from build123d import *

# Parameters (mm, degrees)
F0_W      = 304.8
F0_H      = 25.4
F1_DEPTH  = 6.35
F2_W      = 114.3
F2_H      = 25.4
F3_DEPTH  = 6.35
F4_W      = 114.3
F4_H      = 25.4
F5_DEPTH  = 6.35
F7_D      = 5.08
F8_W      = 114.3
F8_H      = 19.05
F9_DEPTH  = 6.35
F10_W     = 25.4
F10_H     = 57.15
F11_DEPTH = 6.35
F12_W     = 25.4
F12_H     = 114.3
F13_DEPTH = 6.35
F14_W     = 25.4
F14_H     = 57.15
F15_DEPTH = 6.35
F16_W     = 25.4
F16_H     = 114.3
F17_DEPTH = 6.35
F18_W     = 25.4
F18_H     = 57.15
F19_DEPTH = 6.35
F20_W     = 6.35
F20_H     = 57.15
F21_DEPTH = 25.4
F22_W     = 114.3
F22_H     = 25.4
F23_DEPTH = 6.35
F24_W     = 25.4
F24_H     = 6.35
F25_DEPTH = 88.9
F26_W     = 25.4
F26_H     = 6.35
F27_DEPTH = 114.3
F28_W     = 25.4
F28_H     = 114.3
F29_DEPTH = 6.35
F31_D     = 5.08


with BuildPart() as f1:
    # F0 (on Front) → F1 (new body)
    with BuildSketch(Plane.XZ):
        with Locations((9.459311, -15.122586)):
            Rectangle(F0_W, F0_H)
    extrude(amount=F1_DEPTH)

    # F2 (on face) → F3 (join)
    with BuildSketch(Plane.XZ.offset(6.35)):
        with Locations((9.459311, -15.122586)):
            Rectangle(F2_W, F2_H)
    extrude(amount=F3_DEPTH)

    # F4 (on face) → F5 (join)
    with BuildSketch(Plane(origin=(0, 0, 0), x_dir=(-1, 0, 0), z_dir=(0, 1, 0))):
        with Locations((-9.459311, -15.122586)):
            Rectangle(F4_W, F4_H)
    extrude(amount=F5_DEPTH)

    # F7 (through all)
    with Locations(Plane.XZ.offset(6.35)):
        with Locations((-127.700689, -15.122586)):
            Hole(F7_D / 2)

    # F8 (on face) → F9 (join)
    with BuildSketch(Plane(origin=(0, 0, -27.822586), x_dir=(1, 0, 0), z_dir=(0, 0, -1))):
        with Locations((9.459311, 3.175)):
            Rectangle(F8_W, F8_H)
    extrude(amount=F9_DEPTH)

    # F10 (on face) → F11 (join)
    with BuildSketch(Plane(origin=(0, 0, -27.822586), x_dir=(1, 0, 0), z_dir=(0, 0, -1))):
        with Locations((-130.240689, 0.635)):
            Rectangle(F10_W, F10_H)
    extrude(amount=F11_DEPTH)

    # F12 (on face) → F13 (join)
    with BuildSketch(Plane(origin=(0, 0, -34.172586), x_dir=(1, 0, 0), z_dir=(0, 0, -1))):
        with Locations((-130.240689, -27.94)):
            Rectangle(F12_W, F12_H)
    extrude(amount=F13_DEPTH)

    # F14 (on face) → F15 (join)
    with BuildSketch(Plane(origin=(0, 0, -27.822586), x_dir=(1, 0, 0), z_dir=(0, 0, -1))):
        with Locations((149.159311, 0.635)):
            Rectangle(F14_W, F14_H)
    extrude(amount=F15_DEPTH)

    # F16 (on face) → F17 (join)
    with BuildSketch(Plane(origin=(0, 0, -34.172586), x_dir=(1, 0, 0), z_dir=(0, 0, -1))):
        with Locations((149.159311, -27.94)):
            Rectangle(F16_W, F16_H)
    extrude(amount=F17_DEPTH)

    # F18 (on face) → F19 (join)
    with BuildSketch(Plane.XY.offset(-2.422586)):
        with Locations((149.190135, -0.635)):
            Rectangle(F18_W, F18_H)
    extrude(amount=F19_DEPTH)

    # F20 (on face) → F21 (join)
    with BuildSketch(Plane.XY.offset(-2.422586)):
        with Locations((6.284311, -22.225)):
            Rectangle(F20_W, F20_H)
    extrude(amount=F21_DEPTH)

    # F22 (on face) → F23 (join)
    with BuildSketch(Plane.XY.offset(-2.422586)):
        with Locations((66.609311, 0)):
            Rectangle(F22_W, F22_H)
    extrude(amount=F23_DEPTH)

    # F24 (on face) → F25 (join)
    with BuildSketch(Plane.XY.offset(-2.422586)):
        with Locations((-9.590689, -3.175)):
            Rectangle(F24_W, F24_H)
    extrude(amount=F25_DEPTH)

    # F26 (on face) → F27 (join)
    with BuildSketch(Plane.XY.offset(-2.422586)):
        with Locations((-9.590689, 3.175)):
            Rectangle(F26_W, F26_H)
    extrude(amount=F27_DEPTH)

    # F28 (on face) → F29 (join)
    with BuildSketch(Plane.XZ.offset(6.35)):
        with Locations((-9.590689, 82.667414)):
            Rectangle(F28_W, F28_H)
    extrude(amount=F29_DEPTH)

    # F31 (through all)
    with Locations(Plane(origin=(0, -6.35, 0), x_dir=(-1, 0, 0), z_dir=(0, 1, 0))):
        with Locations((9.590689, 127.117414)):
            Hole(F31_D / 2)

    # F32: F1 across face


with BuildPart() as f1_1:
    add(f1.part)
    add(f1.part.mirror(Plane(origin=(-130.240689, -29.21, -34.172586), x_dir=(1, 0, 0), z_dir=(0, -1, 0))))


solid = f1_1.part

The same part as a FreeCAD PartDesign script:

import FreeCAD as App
import Part
import Sketcher
from FreeCAD import Vector
Q = App.Units.Quantity


def add_polygon(sketch, points):
    """Adds a closed chain of lines whose ends are joined by coincident constraints."""
    first, n = sketch.GeometryCount, len(points)
    for a, b in zip(points, points[1:] + points[:1]):
        sketch.addGeometry(Part.LineSegment(App.Vector(*a, 0), App.Vector(*b, 0)), False)
    for i in range(n):
        sketch.addConstraint(Sketcher.Constraint("Coincident", first + i, 2, first + (i + 1) % n, 1))

doc = App.newDocument("Part")
body = doc.addObject("PartDesign::Body", "Body")

# Sketch on XZ plane
sketch1 = body.newObject("Sketcher::SketchObject", "Sketch")
sketch1.AttachmentSupport = (doc.getObject("XZ_Plane"), [""])
sketch1.MapMode = "FlatFace"
add_polygon(sketch1, [(-143, -2), (-143, -28), (162, -28), (162, -2)])  # lines 0-3
sketch1.addConstraint(Sketcher.Constraint("Vertical", 0))
sketch1.addConstraint(Sketcher.Constraint("Horizontal", 1))
sketch1.addConstraint(Sketcher.Constraint("Vertical", 2))
sketch1.addConstraint(Sketcher.Constraint("Horizontal", 3))
sketch1.addConstraint(Sketcher.Constraint("DistanceX", 1, 1, 1, 2, Q("12 in")))
sketch1.addConstraint(Sketcher.Constraint("DistanceY", 0, 2, 0, 1, Q("1 in")))
sketch1.addConstraint(Sketcher.Constraint("DistanceX", 0, 2, -1, 1, 142.940689))
sketch1.addConstraint(Sketcher.Constraint("DistanceY", 0, 2, -1, 1, 27.822586))
pad1 = body.newObject("PartDesign::Pad", "Pad")
pad1.Profile = sketch1
pad1.Length = Q("0.25 in")

# Sketch on XZ plane
sketch2 = body.newObject("Sketcher::SketchObject", "Sketch001")
sketch2.AttachmentSupport = (doc.getObject("XZ_Plane"), [""])
sketch2.MapMode = "FlatFace"
sketch2.AttachmentOffset = App.Placement(Vector(0, 0, 0.25 * 25.4), App.Rotation())
add_polygon(sketch2, [(-48, -2), (-48, -28), (67, -28), (67, -2)])  # lines 0-3
sketch2.addConstraint(Sketcher.Constraint("Vertical", 0))
sketch2.addConstraint(Sketcher.Constraint("Horizontal", 1))
sketch2.addConstraint(Sketcher.Constraint("Vertical", 2))
sketch2.addConstraint(Sketcher.Constraint("Horizontal", 3))
sketch2.addConstraint(Sketcher.Constraint("DistanceY", 0, 2, 0, 1, Q("1 in")))
sketch2.addConstraint(Sketcher.Constraint("DistanceX", 1, 1, 1, 2, Q("4.5 in")))
sketch2.addConstraint(Sketcher.Constraint("DistanceX", 0, 2, -1, 1, 47.690689))
sketch2.addConstraint(Sketcher.Constraint("DistanceY", 0, 2, -1, 1, 27.822586))
pad2 = body.newObject("PartDesign::Pad", "Pad001")
pad2.Profile = sketch2
pad2.Length = Q("0.25 in")

# Sketch on XZ plane
sketch3 = body.newObject("Sketcher::SketchObject", "Sketch002")
sketch3.AttachmentSupport = (doc.getObject("XZ_Plane"), [""])
sketch3.MapMode = "FlatFace"
add_polygon(sketch3, [(67, -2), (67, -28), (-48, -28), (-48, -2)])  # lines 0-3
sketch3.addConstraint(Sketcher.Constraint("Vertical", 0))
sketch3.addConstraint(Sketcher.Constraint("Horizontal", 1))
sketch3.addConstraint(Sketcher.Constraint("Vertical", 2))
sketch3.addConstraint(Sketcher.Constraint("Horizontal", 3))
sketch3.addConstraint(Sketcher.Constraint("DistanceY", 0, 2, 0, 1, Q("1 in")))
sketch3.addConstraint(Sketcher.Constraint("DistanceX", 1, 2, 1, 1, Q("4.5 in")))
sketch3.addConstraint(Sketcher.Constraint("DistanceX", -1, 1, 0, 2, 66.609311))
sketch3.addConstraint(Sketcher.Constraint("DistanceY", 0, 2, -1, 1, 27.822586))
pad3 = body.newObject("PartDesign::Pad", "Pad002")
pad3.Profile = sketch3
pad3.Length = Q("0.25 in")
pad3.Reversed = True

# Sketch on XZ plane
sketch4 = body.newObject("Sketcher::SketchObject", "Sketch003")
sketch4.AttachmentSupport = (doc.getObject("XZ_Plane"), [""])
sketch4.MapMode = "FlatFace"
sketch4.AttachmentOffset = App.Placement(Vector(0, 0, 0.25 * 25.4), App.Rotation())
sketch4.addGeometry(Part.Circle(Vector(-127.7, -15.1, 0), Vector(0, 0, 1), 2.5), False)
sketch4.addConstraint(Sketcher.Constraint("Diameter", 0, Q("0.2 in")))
sketch4.addConstraint(Sketcher.Constraint("DistanceX", 0, 3, -1, 1, 127.700689))
sketch4.addConstraint(Sketcher.Constraint("DistanceY", 0, 3, -1, 1, 15.122586))
doc.recompute()
hole = body.newObject("PartDesign::Hole", "Hole")
hole.Profile = sketch4
hole.ThreadType = "None"
hole.Diameter = Q("0.2 in")
hole.DepthType = "ThroughAll"

# Sketch on XY plane
sketch5 = body.newObject("Sketcher::SketchObject", "Sketch004")
sketch5.AttachmentSupport = (doc.getObject("XY_Plane"), [""])
sketch5.MapMode = "FlatFace"
sketch5.AttachmentOffset = App.Placement(Vector(0, 0, -27.822586), App.Rotation())
add_polygon(sketch5, [(-48, -13), (-48, 6), (67, 6), (67, -13)])  # lines 0-3
sketch5.addConstraint(Sketcher.Constraint("Vertical", 0))
sketch5.addConstraint(Sketcher.Constraint("Horizontal", 1))
sketch5.addConstraint(Sketcher.Constraint("Vertical", 2))
sketch5.addConstraint(Sketcher.Constraint("Horizontal", 3))
sketch5.addConstraint(Sketcher.Constraint("DistanceX", 1, 1, 1, 2, Q("4.5 in")))
sketch5.addConstraint(Sketcher.Constraint("DistanceY", 0, 1, 0, 2, Q("0.75 in")))
sketch5.addConstraint(Sketcher.Constraint("DistanceY", 2, 2, -1, 1, Q("0.5 in")))
sketch5.addConstraint(Sketcher.Constraint("DistanceX", 0, 2, -1, 1, 47.690689))
pad4 = body.newObject("PartDesign::Pad", "Pad003")
pad4.Profile = sketch5
pad4.Length = Q("0.25 in")
pad4.Reversed = True

# Sketch on XY plane
sketch6 = body.newObject("Sketcher::SketchObject", "Sketch005")
sketch6.AttachmentSupport = (doc.getObject("XY_Plane"), [""])
sketch6.MapMode = "FlatFace"
sketch6.AttachmentOffset = App.Placement(Vector(0, 0, -27.822586), App.Rotation())
add_polygon(sketch6, [(-143, -29), (-143, 28), (-118, 28), (-118, -29)])  # lines 0-3
sketch6.addConstraint(Sketcher.Constraint("Vertical", 0))
sketch6.addConstraint(Sketcher.Constraint("Horizontal", 1))
sketch6.addConstraint(Sketcher.Constraint("Vertical", 2))
sketch6.addConstraint(Sketcher.Constraint("Horizontal", 3))
sketch6.addConstraint(Sketcher.Constraint("DistanceX", 1, 1, 1, 2, Q("1 in")))
sketch6.addConstraint(Sketcher.Constraint("DistanceY", 0, 1, 0, 2, Q("2.25 in")))
sketch6.addConstraint(Sketcher.Constraint("DistanceY", -1, 1, 0, 2, Q("1.1 in")))
sketch6.addConstraint(Sketcher.Constraint("DistanceX", 0, 2, -1, 1, 142.940689))
pad5 = body.newObject("PartDesign::Pad", "Pad004")
pad5.Profile = sketch6
pad5.Length = Q("0.25 in")
pad5.Reversed = True

# Sketch on XY plane
sketch7 = body.newObject("Sketcher::SketchObject", "Sketch006")
sketch7.AttachmentSupport = (doc.getObject("XY_Plane"), [""])
sketch7.MapMode = "FlatFace"
sketch7.AttachmentOffset = App.Placement(Vector(0, 0, -34.172586), App.Rotation())
add_polygon(sketch7, [(-143, -29), (-143, 85), (-118, 85), (-118, -29)])  # lines 0-3
sketch7.addConstraint(Sketcher.Constraint("Vertical", 0))
sketch7.addConstraint(Sketcher.Constraint("Horizontal", 1))
sketch7.addConstraint(Sketcher.Constraint("Vertical", 2))
sketch7.addConstraint(Sketcher.Constraint("Horizontal", 3))
sketch7.addConstraint(Sketcher.Constraint("DistanceX", 1, 1, 1, 2, Q("1 in")))
sketch7.addConstraint(Sketcher.Constraint("DistanceY", 0, 1, 0, 2, Q("4.5 in")))
sketch7.addConstraint(Sketcher.Constraint("DistanceY", -1, 1, 0, 2, Q("3.35 in")))
sketch7.addConstraint(Sketcher.Constraint("DistanceX", 0, 2, -1, 1, 142.940689))
pad6 = body.newObject("PartDesign::Pad", "Pad005")
pad6.Profile = sketch7
pad6.Length = Q("0.25 in")
pad6.Reversed = True

# Sketch on XY plane
sketch8 = body.newObject("Sketcher::SketchObject", "Sketch007")
sketch8.AttachmentSupport = (doc.getObject("XY_Plane"), [""])
sketch8.MapMode = "FlatFace"
sketch8.AttachmentOffset = App.Placement(Vector(0, 0, -27.822586), App.Rotation())
add_polygon(sketch8, [(136, -29), (136, 28), (162, 28), (162, -29)])  # lines 0-3
sketch8.addConstraint(Sketcher.Constraint("Vertical", 0))
sketch8.addConstraint(Sketcher.Constraint("Horizontal", 1))
sketch8.addConstraint(Sketcher.Constraint("Vertical", 2))
sketch8.addConstraint(Sketcher.Constraint("Horizontal", 3))
sketch8.addConstraint(Sketcher.Constraint("DistanceX", 1, 1, 1, 2, Q("1 in")))
sketch8.addConstraint(Sketcher.Constraint("DistanceY", 0, 1, 0, 2, Q("2.25 in")))
sketch8.addConstraint(Sketcher.Constraint("DistanceY", -1, 1, 0, 2, Q("1.1 in")))
sketch8.addConstraint(Sketcher.Constraint("DistanceX", -1, 1, 0, 2, 136.459311))
pad7 = body.newObject("PartDesign::Pad", "Pad006")
pad7.Profile = sketch8
pad7.Length = Q("0.25 in")
pad7.Reversed = True

# Sketch on XY plane
sketch9 = body.newObject("Sketcher::SketchObject", "Sketch008")
sketch9.AttachmentSupport = (doc.getObject("XY_Plane"), [""])
sketch9.MapMode = "FlatFace"
sketch9.AttachmentOffset = App.Placement(Vector(0, 0, -34.172586), App.Rotation())
add_polygon(sketch9, [(136, -29), (136, 85), (162, 85), (162, -29)])  # lines 0-3
sketch9.addConstraint(Sketcher.Constraint("Vertical", 0))
sketch9.addConstraint(Sketcher.Constraint("Horizontal", 1))
sketch9.addConstraint(Sketcher.Constraint("Vertical", 2))
sketch9.addConstraint(Sketcher.Constraint("Horizontal", 3))
sketch9.addConstraint(Sketcher.Constraint("DistanceX", 1, 1, 1, 2, Q("1 in")))
sketch9.addConstraint(Sketcher.Constraint("DistanceY", 0, 1, 0, 2, Q("4.5 in")))
sketch9.addConstraint(Sketcher.Constraint("DistanceY", -1, 1, 0, 2, Q("3.35 in")))
sketch9.addConstraint(Sketcher.Constraint("DistanceX", -1, 1, 0, 2, 136.459311))
pad8 = body.newObject("PartDesign::Pad", "Pad007")
pad8.Profile = sketch9
pad8.Length = Q("0.25 in")
pad8.Reversed = True

# Sketch on XY plane
sketch10 = body.newObject("Sketcher::SketchObject", "Sketch009")
sketch10.AttachmentSupport = (doc.getObject("XY_Plane"), [""])
sketch10.MapMode = "FlatFace"
sketch10.AttachmentOffset = App.Placement(Vector(0, 0, -2.422586), App.Rotation())
add_polygon(sketch10, [(136, 28), (136, -29), (162, -29), (162, 28)])  # lines 0-3
sketch10.addConstraint(Sketcher.Constraint("Vertical", 0))
sketch10.addConstraint(Sketcher.Constraint("Horizontal", 1))
sketch10.addConstraint(Sketcher.Constraint("Vertical", 2))
sketch10.addConstraint(Sketcher.Constraint("Horizontal", 3))
sketch10.addConstraint(Sketcher.Constraint("DistanceX", 1, 1, 1, 2, Q("1 in")))
sketch10.addConstraint(Sketcher.Constraint("DistanceY", 0, 2, 0, 1, Q("2.25 in")))
sketch10.addConstraint(Sketcher.Constraint("DistanceY", -1, 1, 2, 2, Q("1.1 in")))
sketch10.addConstraint(Sketcher.Constraint("DistanceX", -1, 1, 0, 2, 136.490135))
pad9 = body.newObject("PartDesign::Pad", "Pad008")
pad9.Profile = sketch10
pad9.Length = Q("0.25 in")

# Sketch on XY plane
sketch11 = body.newObject("Sketcher::SketchObject", "Sketch010")
sketch11.AttachmentSupport = (doc.getObject("XY_Plane"), [""])
sketch11.MapMode = "FlatFace"
sketch11.AttachmentOffset = App.Placement(Vector(0, 0, -2.422586), App.Rotation())
add_polygon(sketch11, [(3, 6), (3, -51), (9, -51), (9, 6)])  # lines 0-3
sketch11.addConstraint(Sketcher.Constraint("Vertical", 0))
sketch11.addConstraint(Sketcher.Constraint("Horizontal", 1))
sketch11.addConstraint(Sketcher.Constraint("Vertical", 2))
sketch11.addConstraint(Sketcher.Constraint("Horizontal", 3))
sketch11.addConstraint(Sketcher.Constraint("DistanceY", 0, 2, -1, 1, Q("2 in")))
sketch11.addConstraint(Sketcher.Constraint("DistanceX", 1, 1, 1, 2, Q("0.25 in")))
sketch11.addConstraint(Sketcher.Constraint("DistanceY", 0, 2, 0, 1, Q("2.25 in")))
sketch11.addConstraint(Sketcher.Constraint("DistanceX", -1, 1, 0, 2, 3.109311))
pad10 = body.newObject("PartDesign::Pad", "Pad009")
pad10.Profile = sketch11
pad10.Length = Q("1 in")

# Sketch on XY plane
sketch12 = body.newObject("Sketcher::SketchObject", "Sketch011")
sketch12.AttachmentSupport = (doc.getObject("XY_Plane"), [""])
sketch12.MapMode = "FlatFace"
sketch12.AttachmentOffset = App.Placement(Vector(0, 0, -2.422586), App.Rotation())
add_polygon(sketch12, [(9, 13), (9, -13), (124, -13), (124, 13)])  # lines 0-3
sketch12.addConstraint(Sketcher.Constraint("Vertical", 0))
sketch12.addConstraint(Sketcher.Constraint("Horizontal", 1))
sketch12.addConstraint(Sketcher.Constraint("Vertical", 2))
sketch12.addConstraint(Sketcher.Constraint("Horizontal", 3))
sketch12.addConstraint(Sketcher.Constraint("DistanceY", 0, 2, 0, 1, Q("1 in")))
sketch12.addConstraint(Sketcher.Constraint("DistanceX", 1, 1, 1, 2, Q("4.5 in")))
sketch12.addConstraint(Sketcher.Constraint("DistanceY", 0, 2, -1, 1, Q("0.5 in")))
sketch12.addConstraint(Sketcher.Constraint("DistanceX", -1, 1, 0, 2, 9.459311))
pad11 = body.newObject("PartDesign::Pad", "Pad010")
pad11.Profile = sketch12
pad11.Length = Q("0.25 in")

# Sketch on XY plane
sketch13 = body.newObject("Sketcher::SketchObject", "Sketch012")
sketch13.AttachmentSupport = (doc.getObject("XY_Plane"), [""])
sketch13.MapMode = "FlatFace"
sketch13.AttachmentOffset = App.Placement(Vector(0, 0, -2.422586), App.Rotation())
add_polygon(sketch13, [(-22, 0), (-22, -6), (3, -6), (3, 0)])  # lines 0-3
sketch13.addConstraint(Sketcher.Constraint("Vertical", 0))
sketch13.addConstraint(Sketcher.Constraint("Horizontal", 1))
sketch13.addConstraint(Sketcher.Constraint("Vertical", 2))
sketch13.addConstraint(Sketcher.Constraint("Horizontal", 3))
sketch13.addConstraint(Sketcher.Constraint("PointOnObject", 2, 2, -1))
sketch13.addConstraint(Sketcher.Constraint("DistanceX", 1, 1, 1, 2, Q("1 in")))
sketch13.addConstraint(Sketcher.Constraint("DistanceY", 0, 2, 0, 1, Q("0.25 in")))
sketch13.addConstraint(Sketcher.Constraint("DistanceX", 0, 2, -1, 1, 22.290689))
pad12 = body.newObject("PartDesign::Pad", "Pad011")
pad12.Profile = sketch13
pad12.Length = Q("3.5 in")

# Sketch on XY plane
sketch14 = body.newObject("Sketcher::SketchObject", "Sketch013")
sketch14.AttachmentSupport = (doc.getObject("XY_Plane"), [""])
sketch14.MapMode = "FlatFace"
sketch14.AttachmentOffset = App.Placement(Vector(0, 0, -2.422586), App.Rotation())
add_polygon(sketch14, [(-22, 6), (-22, 0), (3, 0), (3, 6)])  # lines 0-3
sketch14.addConstraint(Sketcher.Constraint("Vertical", 0))
sketch14.addConstraint(Sketcher.Constraint("Horizontal", 1))
sketch14.addConstraint(Sketcher.Constraint("Vertical", 2))
sketch14.addConstraint(Sketcher.Constraint("Horizontal", 3))
sketch14.addConstraint(Sketcher.Constraint("PointOnObject", 0, 2, -1))
sketch14.addConstraint(Sketcher.Constraint("DistanceX", 1, 1, 1, 2, Q("1 in")))
sketch14.addConstraint(Sketcher.Constraint("DistanceY", 0, 2, 0, 1, Q("0.25 in")))
sketch14.addConstraint(Sketcher.Constraint("DistanceX", 0, 2, -1, 1, 22.290689))
pad13 = body.newObject("PartDesign::Pad", "Pad012")
pad13.Profile = sketch14
pad13.Length = Q("4.5 in")

# Sketch on XZ plane
sketch15 = body.newObject("Sketcher::SketchObject", "Sketch014")
sketch15.AttachmentSupport = (doc.getObject("XZ_Plane"), [""])
sketch15.MapMode = "FlatFace"
sketch15.AttachmentOffset = App.Placement(Vector(0, 0, 0.25 * 25.4), App.Rotation())
add_polygon(sketch15, [(-22, 140), (-22, 26), (3, 26), (3, 140)])  # lines 0-3
sketch15.addConstraint(Sketcher.Constraint("Vertical", 0))
sketch15.addConstraint(Sketcher.Constraint("Horizontal", 1))
sketch15.addConstraint(Sketcher.Constraint("Vertical", 2))
sketch15.addConstraint(Sketcher.Constraint("Horizontal", 3))
sketch15.addConstraint(Sketcher.Constraint("DistanceX", 1, 1, 1, 2, Q("1 in")))
sketch15.addConstraint(Sketcher.Constraint("DistanceY", 0, 2, 0, 1, Q("4.5 in")))
sketch15.addConstraint(Sketcher.Constraint("DistanceX", 0, 2, -1, 1, 22.290689))
sketch15.addConstraint(Sketcher.Constraint("DistanceY", -1, 1, 0, 2, 25.517414))
pad14 = body.newObject("PartDesign::Pad", "Pad013")
pad14.Profile = sketch15
pad14.Length = Q("0.25 in")

# Sketch on XZ plane
sketch16 = body.newObject("Sketcher::SketchObject", "Sketch015")
sketch16.AttachmentSupport = (doc.getObject("XZ_Plane"), [""])
sketch16.MapMode = "FlatFace"
sketch16.AttachmentOffset = App.Placement(Vector(0, 0, 0.25 * 25.4), App.Rotation())
sketch16.addGeometry(Part.Circle(Vector(-9.6, 127.1, 0), Vector(0, 0, 1), 2.5), False)
sketch16.addConstraint(Sketcher.Constraint("Diameter", 0, Q("0.2 in")))
sketch16.addConstraint(Sketcher.Constraint("DistanceX", 0, 3, -1, 1, 9.590689))
sketch16.addConstraint(Sketcher.Constraint("DistanceY", -1, 1, 0, 3, 127.117414))
doc.recompute()
hole2 = body.newObject("PartDesign::Hole", "Hole001")
hole2.Profile = sketch16
hole2.ThreadType = "None"
hole2.Diameter = Q("0.2 in")
hole2.DepthType = "ThroughAll"
hole2.Reversed = True
body2 = doc.addObject("PartDesign::Body", "Body001")
doc.recompute()

body2.BaseFeature = body
doc.recompute()

mirroring = doc.addObject("Part::Mirroring", "Mirroring")
mirroring.Source = body
mirroring.Base = Vector(-130.240689, -29.21, -34.172586)
mirroring.Normal = Vector(0, -1, 0)
body3 = doc.addObject("PartDesign::Body", "Body002")
body3.BaseFeature = mirroring
boolean = body2.newObject("PartDesign::Boolean", "Boolean")
boolean.Type = "Fuse"
boolean.addObjects([body3])
doc.recompute()
mirroring.Visibility = False

doc.recompute()
